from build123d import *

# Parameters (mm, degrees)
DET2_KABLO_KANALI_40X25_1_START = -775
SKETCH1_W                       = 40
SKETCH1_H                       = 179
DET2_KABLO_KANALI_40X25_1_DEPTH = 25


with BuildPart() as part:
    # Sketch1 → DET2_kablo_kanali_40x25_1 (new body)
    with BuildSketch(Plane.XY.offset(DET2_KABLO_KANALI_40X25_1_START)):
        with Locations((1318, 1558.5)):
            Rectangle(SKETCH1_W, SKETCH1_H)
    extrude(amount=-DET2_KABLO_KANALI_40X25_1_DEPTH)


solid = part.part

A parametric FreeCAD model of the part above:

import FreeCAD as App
import Part
import Sketcher
Q = App.Units.Quantity

doc = App.newDocument("Part")
body = doc.addObject("PartDesign::Body", "Body")

sketch1 = body.newObject("Sketcher::SketchObject", "Sketch")
sketch1.AttachmentSupport = (doc.getObject("XY_Plane"), [""])
sketch1.MapMode = "FlatFace"
sketch1.AttachmentOffset = App.Placement(App.Vector(0, 0, -775), App.Rotation())
sketch1.addGeometry([
    Part.LineSegment(App.Vector(1298, 1648, 0), App.Vector(1298, 1469, 0)),
    Part.LineSegment(App.Vector(1298, 1469, 0), App.Vector(1338, 1469, 0)),
    Part.LineSegment(App.Vector(1338, 1469, 0), App.Vector(1338, 1648, 0)),
    Part.LineSegment(App.Vector(1338, 1648, 0), App.Vector(1298, 1648, 0)),
], False)
sketch1.addConstraint([
    Sketcher.Constraint("Coincident", 0, 2, 1, 1),
    Sketcher.Constraint("Coincident", 1, 2, 2, 1),
    Sketcher.Constraint("Coincident", 2, 2, 3, 1),
    Sketcher.Constraint("Coincident", 3, 2, 0, 1),
    Sketcher.Constraint("Vertical", 0),
    Sketcher.Constraint("Horizontal", 1),
    Sketcher.Constraint("Vertical", 2),
    Sketcher.Constraint("Horizontal", 3),
    Sketcher.Constraint("DistanceX", 1, 1, 1, 2, Q("40 mm")),
    Sketcher.Constraint("DistanceY", 0, 2, 0, 1, Q("179 mm")),
    Sketcher.Constraint("DistanceX", -1, 1, 0, 2, Q("1298 mm")),
    Sketcher.Constraint("DistanceY", -1, 1, 0, 2, Q("1469 mm")),
])
pad1 = body.newObject("PartDesign::Pad", "Pad")
pad1.Profile = sketch1
pad1.Length = 25
pad1.Reversed = True

doc.recompute()
